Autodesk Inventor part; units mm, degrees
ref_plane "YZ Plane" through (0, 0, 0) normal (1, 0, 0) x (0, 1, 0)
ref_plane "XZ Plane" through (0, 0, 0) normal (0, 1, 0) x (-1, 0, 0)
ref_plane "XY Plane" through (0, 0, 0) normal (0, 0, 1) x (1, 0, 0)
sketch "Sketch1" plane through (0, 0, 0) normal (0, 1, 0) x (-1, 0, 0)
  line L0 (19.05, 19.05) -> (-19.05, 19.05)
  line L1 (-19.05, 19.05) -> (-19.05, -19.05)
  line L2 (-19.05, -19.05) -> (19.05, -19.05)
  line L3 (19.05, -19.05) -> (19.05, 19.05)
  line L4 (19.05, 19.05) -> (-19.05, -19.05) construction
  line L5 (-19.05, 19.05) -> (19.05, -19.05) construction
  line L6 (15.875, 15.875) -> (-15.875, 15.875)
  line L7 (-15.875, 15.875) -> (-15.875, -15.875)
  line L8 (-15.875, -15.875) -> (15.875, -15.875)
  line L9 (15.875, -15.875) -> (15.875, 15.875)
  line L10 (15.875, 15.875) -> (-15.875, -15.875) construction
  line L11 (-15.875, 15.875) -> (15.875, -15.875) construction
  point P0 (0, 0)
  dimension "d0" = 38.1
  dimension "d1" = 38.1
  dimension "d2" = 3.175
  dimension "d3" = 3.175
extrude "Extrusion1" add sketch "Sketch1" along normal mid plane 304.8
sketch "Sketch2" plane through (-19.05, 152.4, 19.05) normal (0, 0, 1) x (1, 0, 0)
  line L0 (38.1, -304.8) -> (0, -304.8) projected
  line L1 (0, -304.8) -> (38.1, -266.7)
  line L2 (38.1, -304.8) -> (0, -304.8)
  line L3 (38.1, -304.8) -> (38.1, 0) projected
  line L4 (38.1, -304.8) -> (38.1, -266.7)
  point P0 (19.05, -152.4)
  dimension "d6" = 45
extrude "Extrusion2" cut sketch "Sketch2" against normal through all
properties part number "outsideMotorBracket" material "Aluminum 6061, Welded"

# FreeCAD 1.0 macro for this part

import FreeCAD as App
import Part
import Sketcher
Q = App.Units.Quantity


def add_polygon(sketch, points):
    """Adds a closed chain of lines whose ends are joined by coincident constraints."""
    first, n = sketch.GeometryCount, len(points)
    for a, b in zip(points, points[1:] + points[:1]):
        sketch.addGeometry(Part.LineSegment(App.Vector(*a, 0), App.Vector(*b, 0)), False)
    for i in range(n):
        sketch.addConstraint(Sketcher.Constraint("Coincident", first + i, 2, first + (i + 1) % n, 1))

doc = App.newDocument("Part")
params = doc.addObject("Spreadsheet::Sheet", "Params")
for row, (alias, value) in enumerate([
    ("sketch1_width", "1.5 in"),
    ("pad1_length", "12 in"),
    ("sketch2_width", "1.5 in"),
], start=1):
    params.set(f"A{row}", alias)
    params.set(f"B{row}", "=" + value)
    params.setAlias(f"B{row}", alias)

body = doc.addObject("PartDesign::Body", "Body")

# Sketch on XZ plane
sketch1 = doc.addObject("Sketcher::SketchObject", "Sketch")
body.addObject(sketch1)
sketch1.AttachmentSupport = (doc.XZ_Plane, [""])
sketch1.MapMode = "FlatFace"
add_polygon(sketch1, [(-19, -19), (-19, 19), (19, 19), (19, -19)])  # lines 0-3
add_polygon(sketch1, [(16, 16), (-16, 16), (-16, -16), (16, -16)])  # lines 4-7
sketch1.addConstraint([
    Sketcher.Constraint("Vertical", 0),
    Sketcher.Constraint("Horizontal", 1),
    Sketcher.Constraint("Vertical", 2),
    Sketcher.Constraint("Horizontal", 3),
    Sketcher.Constraint("Horizontal", 4),
    Sketcher.Constraint("Vertical", 5),
    Sketcher.Constraint("Horizontal", 6),
    Sketcher.Constraint("Vertical", 7),
    Sketcher.Constraint("Symmetric", 0, 2, 2, 2, -1, 1),
    Sketcher.Constraint("Symmetric", 4, 2, 6, 2, -1, 1),
    Sketcher.Constraint("Equal", 3, 0),
    Sketcher.Constraint("Equal", 6, 5),
    Sketcher.Constraint("DistanceX", 1, 1, 1, 2, Q("1.5 in")),
    Sketcher.Constraint("DistanceX", 0, 2, 4, 2, Q("0.125 in")),
])
sketch1.setExpression("Constraints[20]", "Params.sketch1_width")
pad1 = doc.addObject("PartDesign::Pad", "Pad")
body.addObject(pad1)
pad1.Profile = sketch1
pad1.setExpression("Length", "Params.pad1_length")
pad1.Midplane = True

# Sketch on XY plane
sketch2 = doc.addObject("Sketcher::SketchObject", "Sketch001")
body.addObject(sketch2)
sketch2.AttachmentSupport = (doc.XY_Plane, [""])
sketch2.MapMode = "FlatFace"
sketch2.AttachmentOffset = App.Placement(App.Vector(0, 0, 0.75 * 25.4), App.Rotation())
add_polygon(sketch2, [(-19, -152), (19, -152), (19, -114)])  # lines 0-2
sketch2.addConstraint([
    Sketcher.Constraint("Horizontal", 0),
    Sketcher.Constraint("Vertical", 1),
    Sketcher.Constraint("Equal", 0, 1),
    Sketcher.Constraint("DistanceX", 0, 1, 0, 2, Q("1.5 in")),
    Sketcher.Constraint("DistanceY", 0, 2, -1, 1, Q("6 in")),
    Sketcher.Constraint("DistanceX", -1, 1, 0, 2, Q("0.75 in")),
])
sketch2.setExpression("Constraints[6]", "Params.sketch2_width")
pocket1 = doc.addObject("PartDesign::Pocket", "Pocket")
body.addObject(pocket1)
pocket1.Profile = sketch2
pocket1.Type = "ThroughAll"

doc.recompute()
